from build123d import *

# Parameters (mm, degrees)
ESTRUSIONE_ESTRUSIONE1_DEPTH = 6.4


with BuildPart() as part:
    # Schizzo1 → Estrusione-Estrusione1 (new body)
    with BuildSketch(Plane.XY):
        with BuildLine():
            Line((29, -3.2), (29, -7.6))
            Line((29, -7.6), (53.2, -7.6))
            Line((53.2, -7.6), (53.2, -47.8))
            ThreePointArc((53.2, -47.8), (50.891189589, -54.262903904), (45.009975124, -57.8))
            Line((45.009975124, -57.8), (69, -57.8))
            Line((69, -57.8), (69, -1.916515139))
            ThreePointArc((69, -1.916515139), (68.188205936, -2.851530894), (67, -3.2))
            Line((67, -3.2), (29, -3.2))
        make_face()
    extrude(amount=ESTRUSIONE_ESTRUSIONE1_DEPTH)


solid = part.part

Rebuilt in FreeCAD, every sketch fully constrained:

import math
import FreeCAD as App
import Part
import Sketcher
from FreeCAD import Vector
Q = App.Units.Quantity

doc = App.newDocument("Part")
body = doc.addObject("PartDesign::Body", "Body")

sketch1 = body.newObject("Sketcher::SketchObject", "Sketch")
sketch1.AttachmentSupport = (doc.getObject("XY_Plane"), [""])
sketch1.MapMode = "FlatFace"
sketch1.addGeometry(Part.LineSegment(Vector(29, -3.2, 0), Vector(29, -7.6, 0)), False)
sketch1.addGeometry(Part.LineSegment(Vector(29, -7.6, 0), Vector(53.2, -7.6, 0)), False)
sketch1.addGeometry(Part.LineSegment(Vector(53.2, -7.6, 0), Vector(53.2, -47.8, 0)), False)
sketch1.addGeometry(Part.ArcOfCircle(Part.Circle(Vector(43, -47.8, 0), Vector(0, 0, 1), 10.2), math.radians(-78.635123), math.radians(0)), False)
sketch1.addGeometry(Part.LineSegment(Vector(45.009975, -57.8, 0), Vector(69, -57.8, 0)), False)
sketch1.addGeometry(Part.LineSegment(Vector(69, -57.8, 0), Vector(69, -1.916515, 0)), False)
sketch1.addGeometry(Part.ArcOfCircle(Part.Circle(Vector(67, -1, 0), Vector(0, 0, 1), 2.2), math.radians(-90), math.radians(-24.619977)), False)
sketch1.addGeometry(Part.LineSegment(Vector(67, -3.2, 0), Vector(29, -3.2, 0)), False)
sketch1.addConstraint(Sketcher.Constraint("Coincident", 0, 2, 1, 1))
sketch1.addConstraint(Sketcher.Constraint("Coincident", 1, 2, 2, 1))
sketch1.addConstraint(Sketcher.Constraint("Tangent", 2, 2, 3, 2))
sketch1.addConstraint(Sketcher.Constraint("Coincident", 3, 1, 4, 1))
sketch1.addConstraint(Sketcher.Constraint("Coincident", 4, 2, 5, 1))
sketch1.addConstraint(Sketcher.Constraint("Coincident", 5, 2, 6, 2))
sketch1.addConstraint(Sketcher.Constraint("Tangent", 6, 1, 7, 1))
sketch1.addConstraint(Sketcher.Constraint("Coincident", 7, 2, 0, 1))
sketch1.addConstraint(Sketcher.Constraint("Vertical", 0))
sketch1.addConstraint(Sketcher.Constraint("Horizontal", 1))
sketch1.addConstraint(Sketcher.Constraint("Vertical", 2))
sketch1.addConstraint(Sketcher.Constraint("Horizontal", 4))
sketch1.addConstraint(Sketcher.Constraint("Vertical", 5))
sketch1.addConstraint(Sketcher.Constraint("Horizontal", 7))
sketch1.addConstraint(Sketcher.Constraint("Radius", 3, Q("10.2 mm")))
sketch1.addConstraint(Sketcher.Constraint("Radius", 6, Q("2.2 mm")))
sketch1.addConstraint(Sketcher.Constraint("DistanceX", 7, 2, 7, 1, Q("38 mm")))
sketch1.addConstraint(Sketcher.Constraint("DistanceX", 1, 1, 1, 2, Q("24.2 mm")))
sketch1.addConstraint(Sketcher.Constraint("DistanceY", 0, 2, 0, 1, Q("4.4 mm")))
sketch1.addConstraint(Sketcher.Constraint("DistanceY", 2, 2, 2, 1, Q("40.2 mm")))
sketch1.addConstraint(Sketcher.Constraint("DistanceX", -1, 1, 3, 3, Q("43 mm")))
sketch1.addConstraint(Sketcher.Constraint("DistanceY", 6, 3, -1, 1, Q("1 mm")))
sketch1.addConstraint(Sketcher.Constraint("DistanceX", -1, 1, 4, 2, Q("69 mm")))
sketch1.addConstraint(Sketcher.Constraint("DistanceY", 3, 1, 3, 3, Q("10 mm")))
pad1 = body.newObject("PartDesign::Pad", "Pad")
pad1.Profile = sketch1
pad1.Length = 6.4

doc.recompute()
